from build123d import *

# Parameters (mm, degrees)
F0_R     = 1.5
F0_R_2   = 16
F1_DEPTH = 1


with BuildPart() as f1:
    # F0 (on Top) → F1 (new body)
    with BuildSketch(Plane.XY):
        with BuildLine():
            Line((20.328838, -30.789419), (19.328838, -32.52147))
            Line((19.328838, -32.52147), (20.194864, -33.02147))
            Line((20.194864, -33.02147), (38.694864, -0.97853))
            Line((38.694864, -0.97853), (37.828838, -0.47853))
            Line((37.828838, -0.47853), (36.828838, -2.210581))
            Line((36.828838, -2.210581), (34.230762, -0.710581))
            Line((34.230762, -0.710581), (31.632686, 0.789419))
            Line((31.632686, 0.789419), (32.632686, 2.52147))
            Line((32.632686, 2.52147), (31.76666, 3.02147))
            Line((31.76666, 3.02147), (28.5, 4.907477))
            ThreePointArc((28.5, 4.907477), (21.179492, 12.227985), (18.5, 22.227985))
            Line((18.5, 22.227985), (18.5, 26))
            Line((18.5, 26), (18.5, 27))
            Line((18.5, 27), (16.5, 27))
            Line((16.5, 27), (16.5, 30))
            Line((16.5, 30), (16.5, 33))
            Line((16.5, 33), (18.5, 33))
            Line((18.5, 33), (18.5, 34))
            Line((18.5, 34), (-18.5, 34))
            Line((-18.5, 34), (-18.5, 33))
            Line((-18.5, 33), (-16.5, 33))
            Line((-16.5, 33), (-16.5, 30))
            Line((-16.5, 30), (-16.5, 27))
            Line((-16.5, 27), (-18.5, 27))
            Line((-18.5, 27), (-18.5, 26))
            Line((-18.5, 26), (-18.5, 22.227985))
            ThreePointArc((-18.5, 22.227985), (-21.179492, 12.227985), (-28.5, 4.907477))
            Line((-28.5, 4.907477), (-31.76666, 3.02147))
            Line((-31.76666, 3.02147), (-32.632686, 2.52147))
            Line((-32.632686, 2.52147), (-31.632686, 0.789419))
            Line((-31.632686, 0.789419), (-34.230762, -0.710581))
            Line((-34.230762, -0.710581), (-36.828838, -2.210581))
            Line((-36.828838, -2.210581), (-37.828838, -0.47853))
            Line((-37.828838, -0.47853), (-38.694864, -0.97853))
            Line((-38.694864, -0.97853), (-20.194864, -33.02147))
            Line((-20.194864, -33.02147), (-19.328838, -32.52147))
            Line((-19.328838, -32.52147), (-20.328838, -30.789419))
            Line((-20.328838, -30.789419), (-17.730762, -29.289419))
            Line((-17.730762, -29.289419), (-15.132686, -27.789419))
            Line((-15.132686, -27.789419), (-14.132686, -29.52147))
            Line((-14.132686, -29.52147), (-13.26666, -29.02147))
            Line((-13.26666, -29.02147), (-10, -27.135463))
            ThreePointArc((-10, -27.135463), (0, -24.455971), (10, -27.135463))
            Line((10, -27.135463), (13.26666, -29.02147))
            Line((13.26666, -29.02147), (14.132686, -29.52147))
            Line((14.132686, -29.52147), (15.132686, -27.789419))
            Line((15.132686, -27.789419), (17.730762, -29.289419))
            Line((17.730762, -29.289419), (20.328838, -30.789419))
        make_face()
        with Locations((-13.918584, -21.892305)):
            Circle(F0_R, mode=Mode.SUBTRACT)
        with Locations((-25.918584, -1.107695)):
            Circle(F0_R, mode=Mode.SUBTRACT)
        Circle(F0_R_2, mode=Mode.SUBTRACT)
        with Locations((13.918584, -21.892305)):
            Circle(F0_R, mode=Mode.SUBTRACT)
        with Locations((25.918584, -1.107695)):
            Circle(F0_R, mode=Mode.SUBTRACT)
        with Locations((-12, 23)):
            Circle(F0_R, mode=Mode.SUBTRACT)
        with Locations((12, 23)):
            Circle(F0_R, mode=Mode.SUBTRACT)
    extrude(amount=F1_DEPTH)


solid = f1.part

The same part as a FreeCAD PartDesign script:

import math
import FreeCAD as App
import Part
import Sketcher
from FreeCAD import Vector
Q = App.Units.Quantity

doc = App.newDocument("Part")
params = doc.addObject("Spreadsheet::Sheet", "Params")
for row, (alias, value) in enumerate([
    ("sketch1_diameter", "3 mm"),
    ("sketch1_diameter2", "32 mm"),
    ("sketch1_radius", "20 mm"),
    ("sketch1_width", "2 mm"),
    ("sketch1_width2", "37 mm"),
    ("pad1_length", "1 mm"),
], start=1):
    params.set(f"A{row}", alias)
    params.set(f"B{row}", "=" + value)
    params.setAlias(f"B{row}", alias)

body = doc.addObject("PartDesign::Body", "Body")

sketch1 = body.newObject("Sketcher::SketchObject", "Sketch")
sketch1.AttachmentSupport = (doc.getObject("XY_Plane"), [""])
sketch1.MapMode = "FlatFace"
sketch1.addGeometry(Part.LineSegment(Vector(20.3, -30.8, 0), Vector(19.3, -32.5, 0)), False)
sketch1.addGeometry(Part.LineSegment(Vector(19.3, -32.5, 0), Vector(20.2, -33, 0)), False)
sketch1.addGeometry(Part.LineSegment(Vector(20.2, -33, 0), Vector(38.7, -1, 0)), False)
sketch1.addGeometry(Part.LineSegment(Vector(38.7, -1, 0), Vector(37.8, -0.5, 0)), False)
sketch1.addGeometry(Part.LineSegment(Vector(37.8, -0.5, 0), Vector(36.8, -2.2, 0)), False)
sketch1.addGeometry(Part.LineSegment(Vector(36.8, -2.2, 0), Vector(31.6, 0.8, 0)), False)
sketch1.addGeometry(Part.LineSegment(Vector(31.6, 0.8, 0), Vector(32.6, 2.5, 0)), False)
sketch1.addGeometry(Part.LineSegment(Vector(32.6, 2.5, 0), Vector(31.8, 3, 0)), False)
sketch1.addGeometry(Part.LineSegment(Vector(31.8, 3, 0), Vector(28.5, 4.9, 0)), False)
sketch1.addGeometry(Part.ArcOfCircle(Part.Circle(Vector(38.5, 22.2, 0), Vector(0, 0, 1), 20), math.radians(-180), math.radians(-120)), False)
sketch1.addGeometry(Part.LineSegment(Vector(18.5, 22.2, 0), Vector(18.5, 27, 0)), False)
sketch1.addGeometry(Part.LineSegment(Vector(18.5, 27, 0), Vector(16.5, 27, 0)), False)
sketch1.addGeometry(Part.LineSegment(Vector(16.5, 27, 0), Vector(16.5, 33, 0)), False)
sketch1.addGeometry(Part.LineSegment(Vector(16.5, 33, 0), Vector(18.5, 33, 0)), False)
sketch1.addGeometry(Part.LineSegment(Vector(18.5, 33, 0), Vector(18.5, 34, 0)), False)
sketch1.addGeometry(Part.LineSegment(Vector(18.5, 34, 0), Vector(-18.5, 34, 0)), False)
sketch1.addGeometry(Part.LineSegment(Vector(-18.5, 34, 0), Vector(-18.5, 33, 0)), False)
sketch1.addGeometry(Part.LineSegment(Vector(-18.5, 33, 0), Vector(-16.5, 33, 0)), False)
sketch1.addGeometry(Part.LineSegment(Vector(-16.5, 33, 0), Vector(-16.5, 27, 0)), False)
sketch1.addGeometry(Part.LineSegment(Vector(-16.5, 27, 0), Vector(-18.5, 27, 0)), False)
sketch1.addGeometry(Part.LineSegment(Vector(-18.5, 27, 0), Vector(-18.5, 22.2, 0)), False)
sketch1.addGeometry(Part.ArcOfCircle(Part.Circle(Vector(-38.5, 22.2, 0), Vector(0, 0, 1), 20), math.radians(-60), math.radians(0)), False)
sketch1.addGeometry(Part.LineSegment(Vector(-28.5, 4.9, 0), Vector(-31.8, 3, 0)), False)
sketch1.addGeometry(Part.LineSegment(Vector(-31.8, 3, 0), Vector(-32.6, 2.5, 0)), False)
sketch1.addGeometry(Part.LineSegment(Vector(-32.6, 2.5, 0), Vector(-31.6, 0.8, 0)), False)
sketch1.addGeometry(Part.LineSegment(Vector(-31.6, 0.8, 0), Vector(-36.8, -2.2, 0)), False)
sketch1.addGeometry(Part.LineSegment(Vector(-36.8, -2.2, 0), Vector(-37.8, -0.5, 0)), False)
sketch1.addGeometry(Part.LineSegment(Vector(-37.8, -0.5, 0), Vector(-38.7, -1, 0)), False)
sketch1.addGeometry(Part.LineSegment(Vector(-38.7, -1, 0), Vector(-20.2, -33, 0)), False)
sketch1.addGeometry(Part.LineSegment(Vector(-20.2, -33, 0), Vector(-19.3, -32.5, 0)), False)
sketch1.addGeometry(Part.LineSegment(Vector(-19.3, -32.5, 0), Vector(-20.3, -30.8, 0)), False)
sketch1.addGeometry(Part.LineSegment(Vector(-20.3, -30.8, 0), Vector(-15.1, -27.8, 0)), False)
sketch1.addGeometry(Part.LineSegment(Vector(-15.1, -27.8, 0), Vector(-14.1, -29.5, 0)), False)
sketch1.addGeometry(Part.LineSegment(Vector(-14.1, -29.5, 0), Vector(-13.3, -29, 0)), False)
sketch1.addGeometry(Part.LineSegment(Vector(-13.3, -29, 0), Vector(-10, -27.1, 0)), False)
sketch1.addGeometry(Part.ArcOfCircle(Part.Circle(Vector(0, -44.5, 0), Vector(0, 0, 1), 20), math.radians(60), math.radians(120)), False)
sketch1.addGeometry(Part.LineSegment(Vector(10, -27.1, 0), Vector(13.3, -29, 0)), False)
sketch1.addGeometry(Part.LineSegment(Vector(13.3, -29, 0), Vector(14.1, -29.5, 0)), False)
sketch1.addGeometry(Part.LineSegment(Vector(14.1, -29.5, 0), Vector(15.1, -27.8, 0)), False)
sketch1.addGeometry(Part.LineSegment(Vector(15.1, -27.8, 0), Vector(20.3, -30.8, 0)), False)
sketch1.addGeometry(Part.Circle(Vector(-13.9, -21.9, 0), Vector(0, 0, 1), 1.5), False)
sketch1.addGeometry(Part.Circle(Vector(-25.9, -1.1, 0), Vector(0, 0, 1), 1.5), False)
sketch1.addGeometry(Part.Circle(Vector(13.9, -21.9, 0), Vector(0, 0, 1), 1.5), False)
sketch1.addGeometry(Part.Circle(Vector(0, 0, 0), Vector(0, 0, 1), 16), False)
sketch1.addGeometry(Part.Circle(Vector(25.9, -1.1, 0), Vector(0, 0, 1), 1.5), False)
sketch1.addGeometry(Part.Circle(Vector(-12, 23, 0), Vector(0, 0, 1), 1.5), False)
sketch1.addGeometry(Part.Circle(Vector(12, 23, 0), Vector(0, 0, 1), 1.5), False)
sketch1.addConstraint(Sketcher.Constraint("Coincident", 0, 2, 1, 1))
sketch1.addConstraint(Sketcher.Constraint("Coincident", 1, 2, 2, 1))
sketch1.addConstraint(Sketcher.Constraint("Coincident", 2, 2, 3, 1))
sketch1.addConstraint(Sketcher.Constraint("Coincident", 3, 2, 4, 1))
sketch1.addConstraint(Sketcher.Constraint("Coincident", 4, 2, 5, 1))
sketch1.addConstraint(Sketcher.Constraint("Coincident", 5, 2, 6, 1))
sketch1.addConstraint(Sketcher.Constraint("Coincident", 6, 2, 7, 1))
sketch1.addConstraint(Sketcher.Constraint("Coincident", 7, 2, 8, 1))
sketch1.addConstraint(Sketcher.Constraint("Tangent", 8, 2, 9, 2))
sketch1.addConstraint(Sketcher.Constraint("Tangent", 9, 1, 10, 1))
sketch1.addConstraint(Sketcher.Constraint("Coincident", 10, 2, 11, 1))
sketch1.addConstraint(Sketcher.Constraint("Coincident", 11, 2, 12, 1))
sketch1.addConstraint(Sketcher.Constraint("Coincident", 12, 2, 13, 1))
sketch1.addConstraint(Sketcher.Constraint("Coincident", 13, 2, 14, 1))
sketch1.addConstraint(Sketcher.Constraint("Coincident", 14, 2, 15, 1))
sketch1.addConstraint(Sketcher.Constraint("Coincident", 15, 2, 16, 1))
sketch1.addConstraint(Sketcher.Constraint("Coincident", 16, 2, 17, 1))
sketch1.addConstraint(Sketcher.Constraint("Coincident", 17, 2, 18, 1))
sketch1.addConstraint(Sketcher.Constraint("Coincident", 18, 2, 19, 1))
sketch1.addConstraint(Sketcher.Constraint("Coincident", 19, 2, 20, 1))
sketch1.addConstraint(Sketcher.Constraint("Tangent", 20, 2, 21, 2))
sketch1.addConstraint(Sketcher.Constraint("Tangent", 21, 1, 22, 1))
sketch1.addConstraint(Sketcher.Constraint("Coincident", 22, 2, 23, 1))
sketch1.addConstraint(Sketcher.Constraint("Coincident", 23, 2, 24, 1))
sketch1.addConstraint(Sketcher.Constraint("Coincident", 24, 2, 25, 1))
sketch1.addConstraint(Sketcher.Constraint("Coincident", 25, 2, 26, 1))
sketch1.addConstraint(Sketcher.Constraint("Coincident", 26, 2, 27, 1))
sketch1.addConstraint(Sketcher.Constraint("Coincident", 27, 2, 28, 1))
sketch1.addConstraint(Sketcher.Constraint("Coincident", 28, 2, 29, 1))
sketch1.addConstraint(Sketcher.Constraint("Coincident", 29, 2, 30, 1))
sketch1.addConstraint(Sketcher.Constraint("Coincident", 30, 2, 31, 1))
sketch1.addConstraint(Sketcher.Constraint("Coincident", 31, 2, 32, 1))
sketch1.addConstraint(Sketcher.Constraint("Coincident", 32, 2, 33, 1))
sketch1.addConstraint(Sketcher.Constraint("Coincident", 33, 2, 34, 1))
sketch1.addConstraint(Sketcher.Constraint("Tangent", 34, 2, 35, 2))
sketch1.addConstraint(Sketcher.Constraint("Tangent", 35, 1, 36, 1))
sketch1.addConstraint(Sketcher.Constraint("Coincident", 36, 2, 37, 1))
sketch1.addConstraint(Sketcher.Constraint("Coincident", 37, 2, 38, 1))
sketch1.addConstraint(Sketcher.Constraint("Coincident", 38, 2, 39, 1))
sketch1.addConstraint(Sketcher.Constraint("Coincident", 39, 2, 0, 1))
sketch1.addConstraint(Sketcher.Constraint("Vertical", 10))
sketch1.addConstraint(Sketcher.Constraint("Horizontal", 11))
sketch1.addConstraint(Sketcher.Constraint("Vertical", 12))
sketch1.addConstraint(Sketcher.Constraint("Horizontal", 13))
sketch1.addConstraint(Sketcher.Constraint("Vertical", 14))
sketch1.addConstraint(Sketcher.Constraint("Horizontal", 15))
sketch1.addConstraint(Sketcher.Constraint("Vertical", 16))
sketch1.addConstraint(Sketcher.Constraint("Horizontal", 17))
sketch1.addConstraint(Sketcher.Constraint("Vertical", 18))
sketch1.addConstraint(Sketcher.Constraint("Horizontal", 19))
sketch1.addConstraint(Sketcher.Constraint("Vertical", 20))
sketch1.addConstraint(Sketcher.Constraint("Coincident", 43, 3, -1, 1))
sketch1.addConstraint(Sketcher.Constraint("Equal", 9, 21))
sketch1.addConstraint(Sketcher.Constraint("Equal", 21, 35))
sketch1.addConstraint(Sketcher.Constraint("Equal", 40, 41))
sketch1.addConstraint(Sketcher.Constraint("Equal", 41, 42))
sketch1.addConstraint(Sketcher.Constraint("Equal", 42, 44))
sketch1.addConstraint(Sketcher.Constraint("Equal", 44, 45))
sketch1.addConstraint(Sketcher.Constraint("Equal", 45, 46))
sketch1.addConstraint(Sketcher.Constraint("Symmetric", 9, 3, 21, 3, -2))
sketch1.addConstraint(Sketcher.Constraint("Symmetric", 40, 3, 42, 3, -2))
sketch1.addConstraint(Sketcher.Constraint("Symmetric", 41, 3, 44, 3, -2))
sketch1.addConstraint(Sketcher.Constraint("Symmetric", 45, 3, 46, 3, -2))
sketch1.addConstraint(Sketcher.Constraint("Symmetric", 13, 2, 16, 2, -2))
sketch1.addConstraint(Sketcher.Constraint("Symmetric", 11, 2, 18, 2, -2))
sketch1.addConstraint(Sketcher.Constraint("Symmetric", 7, 2, 22, 2, -2))
sketch1.addConstraint(Sketcher.Constraint("Symmetric", 6, 2, 23, 2, -2))
sketch1.addConstraint(Sketcher.Constraint("Symmetric", 5, 2, 24, 2, -2))
sketch1.addConstraint(Sketcher.Constraint("Symmetric", 4, 2, 25, 2, -2))
sketch1.addConstraint(Sketcher.Constraint("Symmetric", 3, 2, 26, 2, -2))
sketch1.addConstraint(Sketcher.Constraint("Symmetric", 2, 2, 27, 2, -2))
sketch1.addConstraint(Sketcher.Constraint("Symmetric", 1, 2, 28, 2, -2))
sketch1.addConstraint(Sketcher.Constraint("Symmetric", 0, 2, 29, 2, -2))
sketch1.addConstraint(Sketcher.Constraint("Symmetric", 34, 2, 35, 1, -2))
sketch1.addConstraint(Sketcher.Constraint("Symmetric", 32, 2, 37, 2, -2))
sketch1.addConstraint(Sketcher.Constraint("Symmetric", 31, 2, 38, 2, -2))
sketch1.addConstraint(Sketcher.Constraint("Symmetric", 30, 2, 39, 2, -2))
sketch1.addConstraint(Sketcher.Constraint("Perpendicular", 0, 1))
sketch1.addConstraint(Sketcher.Constraint("Perpendicular", 1, 2))
sketch1.addConstraint(Sketcher.Constraint("Perpendicular", 2, 3))
sketch1.addConstraint(Sketcher.Constraint("Perpendicular", 3, 4))
sketch1.addConstraint(Sketcher.Constraint("Perpendicular", 4, 5))
sketch1.addConstraint(Sketcher.Constraint("Perpendicular", 5, 6))
sketch1.addConstraint(Sketcher.Constraint("Perpendicular", 6, 7))
sketch1.addConstraint(Sketcher.Constraint("Parallel", 7, 8))
sketch1.addConstraint(Sketcher.Constraint("Perpendicular", 30, 31))
sketch1.addConstraint(Sketcher.Constraint("Perpendicular", 31, 32))
sketch1.addConstraint(Sketcher.Constraint("Perpendicular", 32, 33))
sketch1.addConstraint(Sketcher.Constraint("Parallel", 33, 34))
sketch1.addConstraint(Sketcher.Constraint("Horizontal", 33, 2, 36, 2))
sketch1.addConstraint(Sketcher.Constraint("Vertical", 10, 2, 13, 2))
sketch1.addConstraint(Sketcher.Constraint("Equal", 1, 3))
sketch1.addConstraint(Sketcher.Constraint("Equal", 0, 4))
sketch1.addConstraint(Sketcher.Constraint("Equal", 4, 6))
sketch1.addConstraint(Sketcher.Constraint("Equal", 3, 7))
sketch1.addConstraint(Sketcher.Constraint("Equal", 25, 31))
sketch1.addConstraint(Sketcher.Constraint("Equal", 30, 32))
sketch1.addConstraint(Sketcher.Constraint("Equal", 29, 33))
sketch1.addConstraint(Sketcher.Constraint("Equal", 22, 34))
sketch1.addConstraint(Sketcher.Constraint("Diameter", 40, Q("3 mm")))
sketch1.addConstraint(Sketcher.Constraint("Diameter", 43, Q("32 mm")))
sketch1.addConstraint(Sketcher.Constraint("Radius", 9, Q("20 mm")))
sketch1.addConstraint(Sketcher.Constraint("DistanceX", 11, 2, 11, 1, Q("2 mm")))
sketch1.addConstraint(Sketcher.Constraint("DistanceX", 15, 2, 15, 1, Q("37 mm")))
sketch1.addConstraint(Sketcher.Constraint("DistanceY", 12, 1, 12, 2, Q("6 mm")))
sketch1.addConstraint(Sketcher.Constraint("DistanceY", 14, 1, 14, 2, Q("1 mm")))
sketch1.addConstraint(Sketcher.Constraint("Angle", 0, Q("-119.999997 deg")))
sketch1.addConstraint(Sketcher.Constraint("Distance", 0, Q("2 mm")))
sketch1.addConstraint(Sketcher.Constraint("Distance", 1, Q("1.000001 mm")))
sketch1.addConstraint(Sketcher.Constraint("Distance", 5, Q("6 mm")))
sketch1.addConstraint(Sketcher.Constraint("DistanceX", 45, 3, -1, 1, Q("12 mm")))
sketch1.addConstraint(Sketcher.Constraint("DistanceY", -1, 1, 45, 3, Q("23 mm")))
sketch1.addConstraint(Sketcher.Constraint("DistanceY", -1, 1, 10, 2, Q("27 mm")))
sketch1.addConstraint(Sketcher.Constraint("DistanceX", 41, 3, 40, 3, Q("12 mm")))
sketch1.addConstraint(Sketcher.Constraint("DistanceY", 35, 3, 0, 2, Q("11.934501 mm")))
sketch1.addConstraint(Sketcher.Constraint("DistanceY", 10, 1, 10, 2, Q("4.772015 mm")))
sketch1.addConstraint(Sketcher.Constraint("DistanceY", 40, 3, 21, 3, Q("44.12029 mm")))
sketch1.addConstraint(Sketcher.Constraint("DistanceY", 40, 3, 41, 3, Q("20.78461 mm")))
sketch1.addConstraint(Sketcher.Constraint("DistanceX", 42, 3, 1, 2, Q("6.27628 mm")))
sketch1.setExpression("Constraints[99]", "Params.sketch1_diameter")
sketch1.setExpression("Constraints[100]", "Params.sketch1_diameter2")
sketch1.setExpression("Constraints[101]", "Params.sketch1_radius")
sketch1.setExpression("Constraints[102]", "Params.sketch1_width")
sketch1.setExpression("Constraints[103]", "Params.sketch1_width2")
pad1 = body.newObject("PartDesign::Pad", "Pad")
pad1.Profile = sketch1
pad1.setExpression("Length", "Params.pad1_length")

doc.recompute()
